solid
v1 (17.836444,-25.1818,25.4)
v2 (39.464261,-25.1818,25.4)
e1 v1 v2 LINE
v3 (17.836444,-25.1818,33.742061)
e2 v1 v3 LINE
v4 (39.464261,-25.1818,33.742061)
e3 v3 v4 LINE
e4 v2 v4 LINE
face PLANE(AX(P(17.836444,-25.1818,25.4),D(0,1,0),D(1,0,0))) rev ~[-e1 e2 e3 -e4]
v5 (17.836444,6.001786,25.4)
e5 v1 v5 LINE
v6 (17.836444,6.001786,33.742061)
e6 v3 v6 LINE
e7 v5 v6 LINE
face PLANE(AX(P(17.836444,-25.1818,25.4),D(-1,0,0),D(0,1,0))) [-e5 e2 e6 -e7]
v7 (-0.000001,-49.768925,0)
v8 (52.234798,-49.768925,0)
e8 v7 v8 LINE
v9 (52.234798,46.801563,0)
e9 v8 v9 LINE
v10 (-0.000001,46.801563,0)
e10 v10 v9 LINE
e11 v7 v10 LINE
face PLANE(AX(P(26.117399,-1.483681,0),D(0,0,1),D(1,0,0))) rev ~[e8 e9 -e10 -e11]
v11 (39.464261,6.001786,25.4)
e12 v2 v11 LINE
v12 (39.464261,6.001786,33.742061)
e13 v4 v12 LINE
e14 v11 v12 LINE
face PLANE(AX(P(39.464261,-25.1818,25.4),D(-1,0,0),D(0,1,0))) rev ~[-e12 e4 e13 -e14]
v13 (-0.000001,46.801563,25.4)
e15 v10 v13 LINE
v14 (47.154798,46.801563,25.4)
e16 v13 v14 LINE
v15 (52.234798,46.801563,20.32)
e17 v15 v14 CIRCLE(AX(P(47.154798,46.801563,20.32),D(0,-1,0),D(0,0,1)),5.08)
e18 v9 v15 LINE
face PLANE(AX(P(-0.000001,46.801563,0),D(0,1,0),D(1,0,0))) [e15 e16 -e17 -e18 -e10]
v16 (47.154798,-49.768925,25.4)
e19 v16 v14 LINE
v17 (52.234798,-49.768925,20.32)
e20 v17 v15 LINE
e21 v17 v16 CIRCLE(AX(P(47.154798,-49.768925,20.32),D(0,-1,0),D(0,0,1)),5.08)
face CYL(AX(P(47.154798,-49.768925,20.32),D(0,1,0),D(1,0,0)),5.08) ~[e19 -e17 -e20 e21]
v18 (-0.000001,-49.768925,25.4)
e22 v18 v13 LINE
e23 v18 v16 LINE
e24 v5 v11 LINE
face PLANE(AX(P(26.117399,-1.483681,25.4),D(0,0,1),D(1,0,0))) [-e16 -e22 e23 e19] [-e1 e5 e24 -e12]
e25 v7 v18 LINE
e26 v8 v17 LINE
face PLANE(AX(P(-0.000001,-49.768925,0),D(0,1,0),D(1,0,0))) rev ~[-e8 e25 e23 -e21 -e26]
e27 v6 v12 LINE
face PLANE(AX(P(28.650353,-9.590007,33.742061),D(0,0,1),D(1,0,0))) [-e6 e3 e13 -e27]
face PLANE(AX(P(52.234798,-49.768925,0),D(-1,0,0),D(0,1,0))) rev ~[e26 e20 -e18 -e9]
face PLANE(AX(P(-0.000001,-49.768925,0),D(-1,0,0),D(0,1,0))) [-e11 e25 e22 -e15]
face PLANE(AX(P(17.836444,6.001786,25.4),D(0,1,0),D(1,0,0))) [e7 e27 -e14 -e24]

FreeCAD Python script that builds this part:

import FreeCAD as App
import Part
import Sketcher
Q = App.Units.Quantity


def edges_at(feature, points):
    """Names of the edges that pass closest to the given points."""
    edges = feature.Shape.Edges
    near = lambda p: min(range(len(edges)), key=lambda i: edges[i].distToShape(Part.Vertex(*p))[0])
    return sorted({f"Edge{near(p) + 1}" for p in points})


def add_polygon(sketch, points):
    """Adds a closed chain of lines whose ends are joined by coincident constraints."""
    first, n = sketch.GeometryCount, len(points)
    for a, b in zip(points, points[1:] + points[:1]):
        sketch.addGeometry(Part.LineSegment(App.Vector(*a, 0), App.Vector(*b, 0)), False)
    for i in range(n):
        sketch.addConstraint(Sketcher.Constraint("Coincident", first + i, 2, first + (i + 1) % n, 1))

doc = App.newDocument("Part")
body = doc.addObject("PartDesign::Body", "Body")

# Sketch on XY plane
sketch1 = body.newObject("Sketcher::SketchObject", "Sketch")
sketch1.AttachmentSupport = (doc.getObject("XY_Plane"), [""])
sketch1.MapMode = "FlatFace"
add_polygon(sketch1, [(0, 47), (0, -50), (52, -50), (52, 47)])  # lines 0-3
sketch1.addConstraint(Sketcher.Constraint("Vertical", 0))
sketch1.addConstraint(Sketcher.Constraint("Horizontal", 1))
sketch1.addConstraint(Sketcher.Constraint("Vertical", 2))
sketch1.addConstraint(Sketcher.Constraint("Horizontal", 3))
sketch1.addConstraint(Sketcher.Constraint("PointOnObject", 0, 2, -2))
sketch1.addConstraint(Sketcher.Constraint("DistanceX", 1, 1, 1, 2, 52.234799))
sketch1.addConstraint(Sketcher.Constraint("DistanceY", 0, 2, 0, 1, 96.570488))
sketch1.addConstraint(Sketcher.Constraint("DistanceY", 0, 2, -1, 1, 49.768925))
pad1 = body.newObject("PartDesign::Pad", "Pad")
pad1.Profile = sketch1
pad1.Length = Q("1 in")
doc.recompute()

fillet = body.newObject("PartDesign::Fillet", "Fillet")
fillet.Base = (pad1, edges_at(pad1, [(52.235, -1.484, 25.4)]))
fillet.Radius = Q("0.2 in")

# Sketch on XY plane
sketch2 = body.newObject("Sketcher::SketchObject", "Sketch001")
sketch2.AttachmentSupport = (doc.getObject("XY_Plane"), [""])
sketch2.MapMode = "FlatFace"
sketch2.AttachmentOffset = App.Placement(App.Vector(0, 0, 1 * 25.4), App.Rotation())
add_polygon(sketch2, [(18, 6), (18, -25), (39, -25), (39, 6)])  # lines 0-3
sketch2.addConstraint(Sketcher.Constraint("Vertical", 0))
sketch2.addConstraint(Sketcher.Constraint("Horizontal", 1))
sketch2.addConstraint(Sketcher.Constraint("Vertical", 2))
sketch2.addConstraint(Sketcher.Constraint("Horizontal", 3))
sketch2.addConstraint(Sketcher.Constraint("DistanceY", 0, 2, 0, 1, Q("1.2277002 in")))
sketch2.addConstraint(Sketcher.Constraint("DistanceY", 0, 2, -1, 1, 25.1818))
sketch2.addConstraint(Sketcher.Constraint("DistanceX", 1, 1, 1, 2, 21.627817))
sketch2.addConstraint(Sketcher.Constraint("DistanceX", -1, 1, 1, 2, 39.464261))
pad2 = body.newObject("PartDesign::Pad", "Pad001")
pad2.Profile = sketch2
pad2.Length = 8.342061

doc.recompute()
